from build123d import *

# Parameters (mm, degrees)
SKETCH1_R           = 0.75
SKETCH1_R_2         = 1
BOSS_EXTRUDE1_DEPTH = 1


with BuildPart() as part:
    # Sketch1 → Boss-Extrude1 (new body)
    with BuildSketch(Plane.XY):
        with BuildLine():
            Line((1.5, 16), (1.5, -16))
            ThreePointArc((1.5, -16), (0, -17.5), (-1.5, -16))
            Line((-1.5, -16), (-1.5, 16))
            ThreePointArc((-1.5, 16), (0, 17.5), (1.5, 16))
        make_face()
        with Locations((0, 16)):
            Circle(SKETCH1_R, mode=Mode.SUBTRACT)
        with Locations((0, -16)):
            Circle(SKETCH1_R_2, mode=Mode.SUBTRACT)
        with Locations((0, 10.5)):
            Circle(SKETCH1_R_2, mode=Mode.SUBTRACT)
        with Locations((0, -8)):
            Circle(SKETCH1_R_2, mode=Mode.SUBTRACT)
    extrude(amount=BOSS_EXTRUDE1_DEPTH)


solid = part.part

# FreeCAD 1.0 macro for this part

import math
import FreeCAD as App
import Part
import Sketcher

doc = App.newDocument("Part")
body = doc.addObject("PartDesign::Body", "Body")

sketch1 = doc.addObject("Sketcher::SketchObject", "Sketch")
body.addObject(sketch1)
sketch1.AttachmentSupport = (doc.XY_Plane, [""])
sketch1.MapMode = "FlatFace"
sketch1.addGeometry(Part.LineSegment(App.Vector(1.5, -16, 0), App.Vector(1.5, 16, 0)), False)
sketch1.addGeometry(Part.ArcOfCircle(Part.Circle(App.Vector(0, 16, 0), App.Vector(0, 0, 1), 1.5), math.radians(0), math.radians(180)), False)
sketch1.addGeometry(Part.LineSegment(App.Vector(-1.5, 16, 0), App.Vector(-1.5, -16, 0)), False)
sketch1.addGeometry(Part.ArcOfCircle(Part.Circle(App.Vector(0, -16, 0), App.Vector(0, 0, 1), 1.5), math.radians(180), math.radians(360)), False)
sketch1.addGeometry(Part.Circle(App.Vector(0, -16, 0), App.Vector(0, 0, 1), 1), False)
sketch1.addGeometry(Part.Circle(App.Vector(0, -8, 0), App.Vector(0, 0, 1), 1), False)
sketch1.addGeometry(Part.Circle(App.Vector(0, 10.5, 0), App.Vector(0, 0, 1), 1), False)
sketch1.addGeometry(Part.Circle(App.Vector(0, 16, 0), App.Vector(0, 0, 1), 0.8), False)
sketch1.addConstraint(Sketcher.Constraint("Tangent", 0, 2, 1, 1))
sketch1.addConstraint(Sketcher.Constraint("Tangent", 1, 2, 2, 1))
sketch1.addConstraint(Sketcher.Constraint("Tangent", 2, 2, 3, 1))
sketch1.addConstraint(Sketcher.Constraint("Tangent", 3, 2, 0, 1))
sketch1.addConstraint(Sketcher.Constraint("Vertical", 0))
sketch1.addConstraint(Sketcher.Constraint("Vertical", 2))
sketch1.addConstraint(Sketcher.Constraint("Coincident", 4, 3, 3, 3))
sketch1.addConstraint(Sketcher.Constraint("Coincident", 7, 3, 1, 3))
sketch1.addConstraint(Sketcher.Constraint("Equal", 4, 5))
sketch1.addConstraint(Sketcher.Constraint("Equal", 5, 6))
sketch1.addConstraint(Sketcher.Constraint("Symmetric", 1, 3, 3, 3, -1, 1))
sketch1.addConstraint(Sketcher.Constraint("PointOnObject", 5, 3, -2))
sketch1.addConstraint(Sketcher.Constraint("PointOnObject", 6, 3, -2))
sketch1.addConstraint(Sketcher.Constraint("Diameter", 4, 2.0))
sketch1.addConstraint(Sketcher.Constraint("Diameter", 7, 1.5))
sketch1.addConstraint(Sketcher.Constraint("Radius", 1, 1.5))
sketch1.addConstraint(Sketcher.Constraint("DistanceY", 0, 1, 0, 2, 32.0))
sketch1.addConstraint(Sketcher.Constraint("DistanceY", 5, 3, -1, 1, 8.0))
sketch1.addConstraint(Sketcher.Constraint("DistanceY", -1, 1, 6, 3, 10.5))
pad1 = doc.addObject("PartDesign::Pad", "Pad")
body.addObject(pad1)
pad1.Profile = sketch1
pad1.Length = 1

doc.recompute()
